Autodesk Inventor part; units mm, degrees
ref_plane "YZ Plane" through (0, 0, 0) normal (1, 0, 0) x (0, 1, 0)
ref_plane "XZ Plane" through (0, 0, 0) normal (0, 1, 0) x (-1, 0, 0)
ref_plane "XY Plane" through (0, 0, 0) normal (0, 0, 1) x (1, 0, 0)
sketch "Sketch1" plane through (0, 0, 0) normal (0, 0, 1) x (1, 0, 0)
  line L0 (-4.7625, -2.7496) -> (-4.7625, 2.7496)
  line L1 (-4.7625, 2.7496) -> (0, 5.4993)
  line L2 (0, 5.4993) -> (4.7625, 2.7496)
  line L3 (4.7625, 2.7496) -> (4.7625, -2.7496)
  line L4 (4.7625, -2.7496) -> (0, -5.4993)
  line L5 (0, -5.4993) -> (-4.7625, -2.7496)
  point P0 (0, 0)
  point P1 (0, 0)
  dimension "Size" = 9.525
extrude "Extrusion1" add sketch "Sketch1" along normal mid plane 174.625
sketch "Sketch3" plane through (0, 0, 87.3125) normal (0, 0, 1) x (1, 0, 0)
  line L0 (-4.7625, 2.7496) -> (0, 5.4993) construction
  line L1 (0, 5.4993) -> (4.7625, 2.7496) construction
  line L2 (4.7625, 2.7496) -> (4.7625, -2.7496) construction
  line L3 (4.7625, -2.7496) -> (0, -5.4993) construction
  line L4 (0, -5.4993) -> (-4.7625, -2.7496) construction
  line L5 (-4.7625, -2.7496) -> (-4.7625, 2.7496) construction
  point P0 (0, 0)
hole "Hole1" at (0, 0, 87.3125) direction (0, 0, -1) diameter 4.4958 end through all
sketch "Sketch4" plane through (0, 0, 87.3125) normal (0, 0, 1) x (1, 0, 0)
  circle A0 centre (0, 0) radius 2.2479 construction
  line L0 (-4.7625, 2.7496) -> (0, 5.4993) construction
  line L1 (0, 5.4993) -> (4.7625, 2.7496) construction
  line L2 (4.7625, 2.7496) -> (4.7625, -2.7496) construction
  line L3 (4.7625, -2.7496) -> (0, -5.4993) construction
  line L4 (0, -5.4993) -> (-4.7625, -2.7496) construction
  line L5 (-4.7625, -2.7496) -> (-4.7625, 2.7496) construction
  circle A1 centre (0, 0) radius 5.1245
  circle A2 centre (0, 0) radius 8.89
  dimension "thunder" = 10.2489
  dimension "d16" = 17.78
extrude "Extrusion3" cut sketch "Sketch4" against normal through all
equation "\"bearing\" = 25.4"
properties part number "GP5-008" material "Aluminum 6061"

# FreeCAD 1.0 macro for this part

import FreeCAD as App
import Part
import Sketcher
from FreeCAD import Vector
Q = App.Units.Quantity


def add_polygon(sketch, points):
    """Adds a closed chain of lines whose ends are joined by coincident constraints."""
    first, n = sketch.GeometryCount, len(points)
    for a, b in zip(points, points[1:] + points[:1]):
        sketch.addGeometry(Part.LineSegment(App.Vector(*a, 0), App.Vector(*b, 0)), False)
    for i in range(n):
        sketch.addConstraint(Sketcher.Constraint("Coincident", first + i, 2, first + (i + 1) % n, 1))

doc = App.newDocument("Part")
body = doc.addObject("PartDesign::Body", "Body")

# Sketch on XY plane
sketch1 = body.newObject("Sketcher::SketchObject", "Sketch")
sketch1.AttachmentSupport = (doc.getObject("XY_Plane"), [""])
sketch1.MapMode = "FlatFace"
add_polygon(sketch1, [(-4.7625, 2.7496), (-4.7625, -2.7496), (0, -5.4993), (4.7625, -2.7496), (4.7625, 2.7496), (0, 5.4993)])  # lines 0-5
sketch1.addConstraint(Sketcher.Constraint("Vertical", 0))
sketch1.addConstraint(Sketcher.Constraint("Vertical", 3))
sketch1.addConstraint(Sketcher.Constraint("Symmetric", 0, 2, 3, 2, -1, 1))
sketch1.addConstraint(Sketcher.Constraint("Symmetric", 1, 2, 4, 2, -1, 1))
sketch1.addConstraint(Sketcher.Constraint("PointOnObject", 1, 2, -2))
sketch1.addConstraint(Sketcher.Constraint("Parallel", 2, 5))
sketch1.addConstraint(Sketcher.Constraint("Horizontal", 0, 2, 2, 2))
sketch1.addConstraint(Sketcher.Constraint("Angle", 1, Q("-30.0006 deg")))
sketch1.addConstraint(Sketcher.Constraint("DistanceX", 0, 2, 2, 2, Q("0.375 in")))
sketch1.addConstraint(Sketcher.Constraint("DistanceY", 0, 2, 0, 1, Q("0.2165 in")))
pad1 = body.newObject("PartDesign::Pad", "Pad")
pad1.Profile = sketch1
pad1.Length = Q("6.875 in")
pad1.Midplane = True

# Sketch on XY plane
sketch2 = body.newObject("Sketcher::SketchObject", "Sketch001")
sketch2.AttachmentSupport = (doc.getObject("XY_Plane"), [""])
sketch2.MapMode = "FlatFace"
sketch2.AttachmentOffset = App.Placement(Vector(0, 0, 3.4375 * 25.4), App.Rotation())
sketch2.addGeometry(Part.Circle(Vector(0, 0, 0), Vector(0, 0, 1), 2.2479), False)
sketch2.addConstraint(Sketcher.Constraint("Coincident", 0, 3, -1, 1))
sketch2.addConstraint(Sketcher.Constraint("Diameter", 0, Q("0.177 in")))
doc.recompute()
hole = body.newObject("PartDesign::Hole", "Hole")
hole.Profile = sketch2
hole.ThreadType = "None"
hole.Diameter = Q("0.177 in")
hole.DepthType = "ThroughAll"

# Sketch on XY plane
sketch3 = body.newObject("Sketcher::SketchObject", "Sketch002")
sketch3.AttachmentSupport = (doc.getObject("XY_Plane"), [""])
sketch3.MapMode = "FlatFace"
sketch3.AttachmentOffset = App.Placement(Vector(0, 0, 3.4375 * 25.4), App.Rotation())
sketch3.addGeometry(Part.Circle(Vector(0, 0, 0), Vector(0, 0, 1), 8.89), False)
sketch3.addGeometry(Part.Circle(Vector(0, 0, 0), Vector(0, 0, 1), 5.1245), False)
sketch3.addConstraint(Sketcher.Constraint("Coincident", 0, 3, -1, 1))
sketch3.addConstraint(Sketcher.Constraint("Coincident", 1, 3, -1, 1))
sketch3.addConstraint(Sketcher.Constraint("Diameter", 0, Q("0.7 in")))
sketch3.addConstraint(Sketcher.Constraint("Diameter", 1, Q("0.4035 in")))
pocket1 = body.newObject("PartDesign::Pocket", "Pocket")
pocket1.Profile = sketch3
pocket1.Type = "ThroughAll"

doc.recompute()
